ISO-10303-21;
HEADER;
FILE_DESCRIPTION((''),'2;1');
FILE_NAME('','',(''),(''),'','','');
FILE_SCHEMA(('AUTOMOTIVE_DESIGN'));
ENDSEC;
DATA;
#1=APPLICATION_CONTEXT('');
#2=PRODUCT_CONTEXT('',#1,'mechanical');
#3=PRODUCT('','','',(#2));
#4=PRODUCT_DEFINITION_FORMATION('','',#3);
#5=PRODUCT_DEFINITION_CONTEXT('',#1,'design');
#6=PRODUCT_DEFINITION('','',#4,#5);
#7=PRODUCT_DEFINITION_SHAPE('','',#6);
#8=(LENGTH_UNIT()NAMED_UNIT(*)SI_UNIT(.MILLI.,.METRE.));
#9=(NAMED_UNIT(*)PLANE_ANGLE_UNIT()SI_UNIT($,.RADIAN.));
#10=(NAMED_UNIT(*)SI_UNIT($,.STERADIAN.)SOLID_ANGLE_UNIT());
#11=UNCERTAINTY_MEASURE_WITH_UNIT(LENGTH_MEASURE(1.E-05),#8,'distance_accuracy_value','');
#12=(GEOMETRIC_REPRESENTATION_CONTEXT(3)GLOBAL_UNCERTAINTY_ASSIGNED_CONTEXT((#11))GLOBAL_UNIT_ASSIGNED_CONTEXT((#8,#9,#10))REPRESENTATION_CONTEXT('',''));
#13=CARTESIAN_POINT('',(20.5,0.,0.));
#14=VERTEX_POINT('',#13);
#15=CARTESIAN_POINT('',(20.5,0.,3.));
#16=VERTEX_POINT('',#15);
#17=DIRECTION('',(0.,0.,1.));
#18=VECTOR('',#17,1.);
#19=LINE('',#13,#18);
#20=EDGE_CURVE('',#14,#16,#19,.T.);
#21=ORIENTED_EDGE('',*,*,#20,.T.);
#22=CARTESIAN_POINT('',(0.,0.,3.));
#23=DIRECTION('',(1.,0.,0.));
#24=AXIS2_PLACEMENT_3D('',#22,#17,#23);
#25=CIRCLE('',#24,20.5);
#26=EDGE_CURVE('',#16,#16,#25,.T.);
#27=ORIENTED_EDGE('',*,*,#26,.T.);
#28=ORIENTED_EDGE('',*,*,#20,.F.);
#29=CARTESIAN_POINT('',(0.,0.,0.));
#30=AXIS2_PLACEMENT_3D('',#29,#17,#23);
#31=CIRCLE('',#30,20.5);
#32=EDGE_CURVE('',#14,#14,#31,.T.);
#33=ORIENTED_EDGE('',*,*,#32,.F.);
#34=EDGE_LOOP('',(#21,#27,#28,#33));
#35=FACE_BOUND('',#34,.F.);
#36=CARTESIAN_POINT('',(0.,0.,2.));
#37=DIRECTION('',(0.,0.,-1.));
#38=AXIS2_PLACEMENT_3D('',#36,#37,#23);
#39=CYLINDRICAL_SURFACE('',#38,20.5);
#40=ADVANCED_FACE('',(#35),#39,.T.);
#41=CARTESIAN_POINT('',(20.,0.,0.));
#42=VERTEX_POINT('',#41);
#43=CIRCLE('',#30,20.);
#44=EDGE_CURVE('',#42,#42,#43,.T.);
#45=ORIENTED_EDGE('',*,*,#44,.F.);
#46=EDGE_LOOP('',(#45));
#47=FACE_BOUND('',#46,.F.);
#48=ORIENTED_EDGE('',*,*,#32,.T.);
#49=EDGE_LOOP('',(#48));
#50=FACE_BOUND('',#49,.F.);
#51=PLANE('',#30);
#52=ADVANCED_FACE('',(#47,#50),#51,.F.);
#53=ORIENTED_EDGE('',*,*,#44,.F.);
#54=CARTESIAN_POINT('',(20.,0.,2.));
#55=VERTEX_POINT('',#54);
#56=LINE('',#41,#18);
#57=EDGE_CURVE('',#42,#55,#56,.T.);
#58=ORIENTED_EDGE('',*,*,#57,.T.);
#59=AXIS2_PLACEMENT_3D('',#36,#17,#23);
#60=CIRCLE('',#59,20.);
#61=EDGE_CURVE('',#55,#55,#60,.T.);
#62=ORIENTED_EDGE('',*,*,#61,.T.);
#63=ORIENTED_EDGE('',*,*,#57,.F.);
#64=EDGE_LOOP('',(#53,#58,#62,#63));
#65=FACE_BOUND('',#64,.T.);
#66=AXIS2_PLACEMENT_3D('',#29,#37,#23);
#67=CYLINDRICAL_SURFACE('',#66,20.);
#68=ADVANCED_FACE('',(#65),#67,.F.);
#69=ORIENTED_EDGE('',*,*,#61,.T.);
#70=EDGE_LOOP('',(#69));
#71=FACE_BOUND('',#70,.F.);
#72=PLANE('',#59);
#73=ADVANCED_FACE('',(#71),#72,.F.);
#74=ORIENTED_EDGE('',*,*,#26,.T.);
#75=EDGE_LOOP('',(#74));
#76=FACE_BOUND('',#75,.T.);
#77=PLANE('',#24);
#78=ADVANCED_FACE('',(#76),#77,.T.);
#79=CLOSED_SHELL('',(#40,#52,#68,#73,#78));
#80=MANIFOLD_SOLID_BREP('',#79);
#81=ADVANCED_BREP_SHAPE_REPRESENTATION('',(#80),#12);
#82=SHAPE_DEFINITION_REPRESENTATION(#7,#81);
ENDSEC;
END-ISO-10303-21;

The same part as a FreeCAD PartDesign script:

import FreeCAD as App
import Part
import Sketcher

V = App.Vector

doc = App.newDocument("Part")
params = doc.addObject("Spreadsheet::Sheet", "Params")
for row, (alias, value) in enumerate([
    ("sketch1_diameter", "41 mm"),
    ("sketch1_diameter2", "40 mm"),
    ("pad1_length", "2 mm"),
    ("sketch2_diameter", "41 mm"),
    ("pad2_length", "1 mm"),
], start=1):
    params.set(f"A{row}", alias)
    params.set(f"B{row}", "=" + value)
    params.setAlias(f"B{row}", alias)

body = doc.addObject("PartDesign::Body", "Body")

# Sketch on XY plane
sketch1 = body.newObject("Sketcher::SketchObject", "Sketch")
sketch1.AttachmentSupport = (doc.getObject("XY_Plane"), [""])
sketch1.MapMode = "FlatFace"
sketch1.addGeometry([
    Part.Circle(V(0, 0, 0), V(0, 0, 1), 20),
    Part.Circle(V(0, 0, 0), V(0, 0, 1), 20),
], False)
sketch1.addConstraint([
    Sketcher.Constraint("Coincident", 0, 3, -1, 1),
    Sketcher.Constraint("Coincident", 1, 3, -1, 1),
    Sketcher.Constraint("Diameter", 0, 41.0),
    Sketcher.Constraint("Diameter", 1, 40.0),
])
sketch1.setExpression("Constraints[2]", "Params.sketch1_diameter")
sketch1.setExpression("Constraints[3]", "Params.sketch1_diameter2")
pad1 = body.newObject("PartDesign::Pad", "Pad")
pad1.Profile = sketch1
pad1.setExpression("Length", "Params.pad1_length")

# Sketch on XY plane
sketch2 = body.newObject("Sketcher::SketchObject", "Sketch001")
sketch2.AttachmentSupport = (doc.getObject("XY_Plane"), [""])
sketch2.MapMode = "FlatFace"
sketch2.AttachmentOffset = App.Placement(V(0, 0, 2), App.Rotation())
sketch2.addGeometry(Part.Circle(V(0, 0, 0), V(0, 0, 1), 20), False)
sketch2.addConstraint([
    Sketcher.Constraint("Coincident", 0, 3, -1, 1),
    Sketcher.Constraint("Diameter", 0, 41.0),
])
sketch2.setExpression("Constraints[1]", "Params.sketch2_diameter")
pad2 = body.newObject("PartDesign::Pad", "Pad001")
pad2.Profile = sketch2
pad2.setExpression("Length", "Params.pad2_length")

doc.recompute()
